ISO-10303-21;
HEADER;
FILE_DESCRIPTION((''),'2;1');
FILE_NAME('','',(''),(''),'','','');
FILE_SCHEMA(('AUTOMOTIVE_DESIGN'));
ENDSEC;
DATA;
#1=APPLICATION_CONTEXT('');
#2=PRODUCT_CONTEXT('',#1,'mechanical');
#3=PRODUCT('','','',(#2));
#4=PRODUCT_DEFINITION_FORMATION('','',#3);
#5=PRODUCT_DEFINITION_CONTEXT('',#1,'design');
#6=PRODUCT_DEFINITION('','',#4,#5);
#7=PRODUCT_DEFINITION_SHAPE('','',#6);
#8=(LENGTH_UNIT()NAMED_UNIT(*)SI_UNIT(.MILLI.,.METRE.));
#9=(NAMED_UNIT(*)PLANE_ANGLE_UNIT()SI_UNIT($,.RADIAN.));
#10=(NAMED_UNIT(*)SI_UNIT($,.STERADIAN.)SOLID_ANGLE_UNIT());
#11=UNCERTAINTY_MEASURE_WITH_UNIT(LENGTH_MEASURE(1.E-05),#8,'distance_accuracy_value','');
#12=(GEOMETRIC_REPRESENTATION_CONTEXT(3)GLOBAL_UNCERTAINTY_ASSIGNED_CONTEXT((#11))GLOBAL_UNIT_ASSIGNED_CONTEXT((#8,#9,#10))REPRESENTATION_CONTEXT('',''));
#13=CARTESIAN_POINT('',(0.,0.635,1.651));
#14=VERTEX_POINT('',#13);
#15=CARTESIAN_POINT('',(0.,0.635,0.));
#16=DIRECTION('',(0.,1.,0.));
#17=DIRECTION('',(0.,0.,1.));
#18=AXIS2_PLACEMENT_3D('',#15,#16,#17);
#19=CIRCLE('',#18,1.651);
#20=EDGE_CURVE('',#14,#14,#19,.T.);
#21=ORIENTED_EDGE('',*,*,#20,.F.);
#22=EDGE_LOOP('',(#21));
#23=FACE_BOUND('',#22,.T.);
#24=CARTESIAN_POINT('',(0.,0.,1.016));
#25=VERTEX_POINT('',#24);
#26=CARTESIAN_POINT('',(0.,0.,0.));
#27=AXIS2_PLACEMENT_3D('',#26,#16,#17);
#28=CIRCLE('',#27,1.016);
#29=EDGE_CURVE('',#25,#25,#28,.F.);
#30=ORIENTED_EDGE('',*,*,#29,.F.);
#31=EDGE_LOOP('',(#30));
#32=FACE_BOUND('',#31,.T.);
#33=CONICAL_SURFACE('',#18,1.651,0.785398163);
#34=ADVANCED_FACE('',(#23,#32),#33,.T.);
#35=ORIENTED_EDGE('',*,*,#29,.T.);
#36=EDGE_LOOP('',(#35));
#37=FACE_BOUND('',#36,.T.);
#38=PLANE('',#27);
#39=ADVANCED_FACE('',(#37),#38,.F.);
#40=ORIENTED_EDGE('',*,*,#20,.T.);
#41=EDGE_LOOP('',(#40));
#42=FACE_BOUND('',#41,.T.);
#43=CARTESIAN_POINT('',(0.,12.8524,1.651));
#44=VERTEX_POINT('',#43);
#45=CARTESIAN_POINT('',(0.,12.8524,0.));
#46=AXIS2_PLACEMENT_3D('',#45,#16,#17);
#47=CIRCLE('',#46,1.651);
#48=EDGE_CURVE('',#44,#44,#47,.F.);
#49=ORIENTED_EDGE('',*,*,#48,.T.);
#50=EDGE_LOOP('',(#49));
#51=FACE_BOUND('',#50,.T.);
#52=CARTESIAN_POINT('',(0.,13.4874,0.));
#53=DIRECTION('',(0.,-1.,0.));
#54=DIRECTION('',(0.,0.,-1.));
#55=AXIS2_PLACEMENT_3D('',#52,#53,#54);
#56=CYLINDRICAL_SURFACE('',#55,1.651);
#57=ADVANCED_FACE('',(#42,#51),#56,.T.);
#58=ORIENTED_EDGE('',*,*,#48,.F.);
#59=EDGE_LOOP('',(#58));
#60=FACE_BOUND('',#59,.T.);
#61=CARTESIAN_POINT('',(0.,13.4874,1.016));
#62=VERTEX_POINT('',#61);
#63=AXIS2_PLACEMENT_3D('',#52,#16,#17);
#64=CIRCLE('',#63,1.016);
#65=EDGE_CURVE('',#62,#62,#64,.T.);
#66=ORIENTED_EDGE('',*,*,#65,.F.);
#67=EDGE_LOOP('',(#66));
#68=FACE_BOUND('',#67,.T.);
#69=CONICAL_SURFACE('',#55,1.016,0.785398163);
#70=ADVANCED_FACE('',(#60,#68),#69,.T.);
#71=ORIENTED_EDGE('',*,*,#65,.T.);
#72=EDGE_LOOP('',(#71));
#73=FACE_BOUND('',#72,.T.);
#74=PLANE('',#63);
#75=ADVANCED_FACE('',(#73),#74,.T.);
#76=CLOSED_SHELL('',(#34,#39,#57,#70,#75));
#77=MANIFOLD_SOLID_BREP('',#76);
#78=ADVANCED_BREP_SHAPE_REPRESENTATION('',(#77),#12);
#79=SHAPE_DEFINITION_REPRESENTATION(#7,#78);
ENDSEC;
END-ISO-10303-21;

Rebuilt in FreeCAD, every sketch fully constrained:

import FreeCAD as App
import Part
import Sketcher
Q = App.Units.Quantity


def edges_at(feature, points):
    """Names of the edges that pass closest to the given points."""
    edges = feature.Shape.Edges
    near = lambda p: min(range(len(edges)), key=lambda i: edges[i].distToShape(Part.Vertex(*p))[0])
    return sorted({f"Edge{near(p) + 1}" for p in points})

doc = App.newDocument("Part")
body = doc.addObject("PartDesign::Body", "Body")

sketch1 = body.newObject("Sketcher::SketchObject", "Sketch")
sketch1.AttachmentSupport = (doc.getObject("XZ_Plane"), [""])
sketch1.MapMode = "FlatFace"
sketch1.addGeometry(Part.Circle(App.Vector(0, 0, 0), App.Vector(0, 0, 1), 1.7), False)
sketch1.addConstraint(Sketcher.Constraint("Coincident", 0, 3, -1, 1))
sketch1.addConstraint(Sketcher.Constraint("Diameter", 0, Q("0.13 in")))
pad1 = body.newObject("PartDesign::Pad", "Pad")
pad1.Profile = sketch1
pad1.Length = Q("0.531 in")
pad1.Reversed = True
doc.recompute()

chamfer = body.newObject("PartDesign::Chamfer", "Chamfer")
chamfer.Base = (pad1, edges_at(pad1, [(-1.651, 0, 0), (-1.651, 13.487, 0)]))
chamfer.Size = Q("0.025 in")

doc.recompute()
